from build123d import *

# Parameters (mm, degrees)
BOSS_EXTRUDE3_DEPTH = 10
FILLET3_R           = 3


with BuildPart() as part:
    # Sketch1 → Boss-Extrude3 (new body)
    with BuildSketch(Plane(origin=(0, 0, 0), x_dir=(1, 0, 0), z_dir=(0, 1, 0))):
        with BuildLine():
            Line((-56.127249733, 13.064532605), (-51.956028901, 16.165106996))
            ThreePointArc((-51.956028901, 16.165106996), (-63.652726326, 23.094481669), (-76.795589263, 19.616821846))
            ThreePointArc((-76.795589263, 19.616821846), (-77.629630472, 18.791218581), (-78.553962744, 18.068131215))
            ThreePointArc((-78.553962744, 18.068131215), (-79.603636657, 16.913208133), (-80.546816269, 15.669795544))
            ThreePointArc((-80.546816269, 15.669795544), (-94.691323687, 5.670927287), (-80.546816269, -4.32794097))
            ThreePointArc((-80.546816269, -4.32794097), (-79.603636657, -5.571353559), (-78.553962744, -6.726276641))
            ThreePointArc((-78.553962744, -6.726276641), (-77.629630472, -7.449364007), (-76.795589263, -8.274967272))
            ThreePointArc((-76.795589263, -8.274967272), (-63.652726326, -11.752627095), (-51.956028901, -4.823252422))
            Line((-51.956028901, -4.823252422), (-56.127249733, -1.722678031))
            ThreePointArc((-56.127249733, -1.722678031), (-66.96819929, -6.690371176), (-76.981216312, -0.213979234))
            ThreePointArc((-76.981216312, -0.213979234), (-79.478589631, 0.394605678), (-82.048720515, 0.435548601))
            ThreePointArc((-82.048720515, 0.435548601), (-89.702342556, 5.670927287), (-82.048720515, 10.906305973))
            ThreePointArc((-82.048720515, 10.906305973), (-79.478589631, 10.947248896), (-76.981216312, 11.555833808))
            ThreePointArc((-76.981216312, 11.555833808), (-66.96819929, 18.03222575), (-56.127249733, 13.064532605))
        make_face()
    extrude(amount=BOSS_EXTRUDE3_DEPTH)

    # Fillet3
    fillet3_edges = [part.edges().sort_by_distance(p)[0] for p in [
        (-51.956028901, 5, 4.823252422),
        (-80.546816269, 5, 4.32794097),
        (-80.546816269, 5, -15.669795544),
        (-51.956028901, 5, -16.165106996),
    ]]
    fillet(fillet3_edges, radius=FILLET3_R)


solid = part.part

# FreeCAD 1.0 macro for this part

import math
import FreeCAD as App
import Part
import Sketcher
Q = App.Units.Quantity


def edges_at(feature, points):
    """Names of the edges that pass closest to the given points."""
    edges = feature.Shape.Edges
    near = lambda p: min(range(len(edges)), key=lambda i: edges[i].distToShape(Part.Vertex(*p))[0])
    return sorted({f"Edge{near(p) + 1}" for p in points})

doc = App.newDocument("Part")
body = doc.addObject("PartDesign::Body", "Body")

# Sketch on XZ plane
sketch1 = doc.addObject("Sketcher::SketchObject", "Sketch")
body.addObject(sketch1)
sketch1.AttachmentSupport = (doc.XZ_Plane, [""])
sketch1.MapMode = "FlatFace"
sketch1.addGeometry(Part.LineSegment(App.Vector(-56.1, -13.1, 0), App.Vector(-52, -16.2, 0)), False)
sketch1.addGeometry(Part.ArcOfCircle(Part.Circle(App.Vector(-66.1, -5.7, 0), App.Vector(0, 0, 1), 17.6), math.radians(-128), math.radians(-37)), False)
sketch1.addGeometry(Part.ArcOfCircle(Part.Circle(App.Vector(-84.3, -26.4, 0), App.Vector(0, 0, 1), 10.1), math.radians(41.95), math.radians(55.3)), False)
sketch1.addGeometry(Part.ArcOfCircle(Part.Circle(App.Vector(-66.1, -5.7, 0), App.Vector(0, 0, 1), 17.6), math.radians(-145.36), math.radians(-135.19)), False)
sketch1.addGeometry(Part.ArcOfCircle(Part.Circle(App.Vector(-84.1, -5.7, 0), App.Vector(0, 0, 1), 10.6), math.radians(71), math.radians(289)), False)
sketch1.addGeometry(Part.ArcOfCircle(Part.Circle(App.Vector(-66.1, -5.7, 0), App.Vector(0, 0, 1), 17.6), math.radians(135.19), math.radians(145.36)), False)
sketch1.addGeometry(Part.ArcOfCircle(Part.Circle(App.Vector(-84.3, 15, 0), App.Vector(0, 0, 1), 10.1), math.radians(-55.3), math.radians(-41.95)), False)
sketch1.addGeometry(Part.ArcOfCircle(Part.Circle(App.Vector(-66.1, -5.7, 0), App.Vector(0, 0, 1), 17.6), math.radians(37), math.radians(128)), False)
sketch1.addGeometry(Part.LineSegment(App.Vector(-52, 4.8, 0), App.Vector(-56.1, 1.7, 0)), False)
sketch1.addGeometry(Part.ArcOfCircle(Part.Circle(App.Vector(-66.1, -5.7, 0), App.Vector(0, 0, 1), 12.4), math.radians(37), math.radians(152)), False)
sketch1.addGeometry(Part.ArcOfCircle(Part.Circle(App.Vector(-80.9, 11.1, 0), App.Vector(0, 0, 1), 11.5), math.radians(-95), math.radians(-70)), False)
sketch1.addGeometry(Part.ArcOfCircle(Part.Circle(App.Vector(-84.1, -5.7, 0), App.Vector(0, 0, 1), 5.6), math.radians(69), math.radians(291)), False)
sketch1.addGeometry(Part.ArcOfCircle(Part.Circle(App.Vector(-80.9, -22.4, 0), App.Vector(0, 0, 1), 11.5), math.radians(70), math.radians(95)), False)
sketch1.addGeometry(Part.ArcOfCircle(Part.Circle(App.Vector(-66.1, -5.7, 0), App.Vector(0, 0, 1), 12.4), math.radians(-152), math.radians(-37)), False)
sketch1.addConstraint(Sketcher.Constraint("Coincident", 0, 2, 1, 2))
sketch1.addConstraint(Sketcher.Constraint("Coincident", 1, 1, 2, 1))
sketch1.addConstraint(Sketcher.Constraint("Coincident", 2, 2, 3, 2))
sketch1.addConstraint(Sketcher.Constraint("Coincident", 3, 1, 4, 2))
sketch1.addConstraint(Sketcher.Constraint("Coincident", 4, 1, 5, 2))
sketch1.addConstraint(Sketcher.Constraint("Coincident", 5, 1, 6, 1))
sketch1.addConstraint(Sketcher.Constraint("Coincident", 6, 2, 7, 2))
sketch1.addConstraint(Sketcher.Constraint("Coincident", 7, 1, 8, 1))
sketch1.addConstraint(Sketcher.Constraint("Coincident", 8, 2, 9, 1))
sketch1.addConstraint(Sketcher.Constraint("Coincident", 9, 2, 10, 2))
sketch1.addConstraint(Sketcher.Constraint("Coincident", 10, 1, 11, 1))
sketch1.addConstraint(Sketcher.Constraint("Coincident", 11, 2, 12, 2))
sketch1.addConstraint(Sketcher.Constraint("Coincident", 12, 1, 13, 1))
sketch1.addConstraint(Sketcher.Constraint("Coincident", 13, 2, 0, 1))
sketch1.addConstraint(Sketcher.Constraint("Coincident", 3, 3, 1, 3))
sketch1.addConstraint(Sketcher.Constraint("Coincident", 5, 3, 1, 3))
sketch1.addConstraint(Sketcher.Constraint("Coincident", 7, 3, 1, 3))
sketch1.addConstraint(Sketcher.Constraint("Coincident", 9, 3, 1, 3))
sketch1.addConstraint(Sketcher.Constraint("Coincident", 11, 3, 4, 3))
sketch1.addConstraint(Sketcher.Constraint("Coincident", 13, 3, 1, 3))
sketch1.addConstraint(Sketcher.Constraint("Equal", 1, 3))
sketch1.addConstraint(Sketcher.Constraint("Equal", 3, 5))
sketch1.addConstraint(Sketcher.Constraint("Equal", 2, 6))
sketch1.addConstraint(Sketcher.Constraint("Equal", 5, 7))
sketch1.addConstraint(Sketcher.Constraint("Equal", 10, 12))
sketch1.addConstraint(Sketcher.Constraint("Equal", 9, 13))
sketch1.addConstraint(Sketcher.Constraint("Horizontal", 3, 3, 4, 3))
sketch1.addConstraint(Sketcher.Constraint("Vertical", 2, 3, 6, 3))
sketch1.addConstraint(Sketcher.Constraint("Vertical", 10, 3, 12, 3))
sketch1.addConstraint(Sketcher.Constraint("Vertical", 2, 2, 5, 1))
sketch1.addConstraint(Sketcher.Constraint("Vertical", 0, 2, 7, 1))
sketch1.addConstraint(Sketcher.Constraint("Vertical", 10, 1, 11, 2))
sketch1.addConstraint(Sketcher.Constraint("Vertical", 8, 2, 13, 2))
sketch1.addConstraint(Sketcher.Constraint("Radius", 2, Q("10.081669 mm")))
sketch1.addConstraint(Sketcher.Constraint("Radius", 1, Q("17.590974 mm")))
sketch1.addConstraint(Sketcher.Constraint("Radius", 4, Q("10.606395 mm")))
sketch1.addConstraint(Sketcher.Constraint("Radius", 9, Q("12.393605 mm")))
sketch1.addConstraint(Sketcher.Constraint("Radius", 10, Q("11.545365 mm")))
sketch1.addConstraint(Sketcher.Constraint("Radius", 11, Q("5.617414 mm")))
sketch1.addConstraint(Sketcher.Constraint("DistanceY", 4, 3, 10, 3, Q("16.728001 mm")))
sketch1.addConstraint(Sketcher.Constraint("DistanceX", 10, 3, 5, 3, Q("14.8725 mm")))
sketch1.addConstraint(Sketcher.Constraint("DistanceX", 4, 1, 9, 2, Q("3.5656 mm")))
sketch1.addConstraint(Sketcher.Constraint("DistanceX", 1, 3, -1, 1, Q("66.07391 mm")))
sketch1.addConstraint(Sketcher.Constraint("DistanceY", 12, 3, -1, 1, Q("22.398928 mm")))
sketch1.addConstraint(Sketcher.Constraint("DistanceX", 0, 2, -1, 1, Q("51.956029 mm")))
sketch1.addConstraint(Sketcher.Constraint("DistanceX", 1, 1, -1, 1, Q("76.795589 mm")))
sketch1.addConstraint(Sketcher.Constraint("DistanceY", 2, 2, -1, 1, Q("18.068131 mm")))
sketch1.addConstraint(Sketcher.Constraint("DistanceX", 8, 2, -1, 1, Q("56.12725 mm")))
pad1 = doc.addObject("PartDesign::Pad", "Pad")
body.addObject(pad1)
pad1.Profile = sketch1
pad1.Length = 10
pad1.Reversed = True
doc.recompute()

fillet = doc.addObject("PartDesign::Fillet", "Fillet")
body.addObject(fillet)
fillet.Base = (pad1, edges_at(pad1, [
    (-51.956, 5, 4.823),
    (-80.547, 5, 4.328),
    (-80.547, 5, -15.67),
    (-51.956, 5, -16.165),
]))
fillet.Radius = 3

doc.recompute()
